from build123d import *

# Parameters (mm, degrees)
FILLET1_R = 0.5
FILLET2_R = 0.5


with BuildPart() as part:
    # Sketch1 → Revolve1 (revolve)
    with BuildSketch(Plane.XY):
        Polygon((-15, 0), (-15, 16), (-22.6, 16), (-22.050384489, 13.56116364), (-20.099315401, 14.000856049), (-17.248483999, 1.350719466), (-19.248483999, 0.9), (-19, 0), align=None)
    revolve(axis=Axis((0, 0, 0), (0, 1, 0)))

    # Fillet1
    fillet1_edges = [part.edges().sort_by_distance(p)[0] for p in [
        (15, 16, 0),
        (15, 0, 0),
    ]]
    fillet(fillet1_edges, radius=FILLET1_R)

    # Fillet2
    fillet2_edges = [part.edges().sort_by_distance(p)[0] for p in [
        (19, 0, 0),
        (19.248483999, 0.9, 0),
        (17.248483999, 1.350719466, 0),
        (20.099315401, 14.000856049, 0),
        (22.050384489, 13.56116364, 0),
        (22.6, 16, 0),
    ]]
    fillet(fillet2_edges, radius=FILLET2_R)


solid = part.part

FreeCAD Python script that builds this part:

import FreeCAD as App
import Part
import Sketcher
from FreeCAD import Vector
Q = App.Units.Quantity


def edges_at(feature, points):
    """Names of the edges that pass closest to the given points."""
    edges = feature.Shape.Edges
    near = lambda p: min(range(len(edges)), key=lambda i: edges[i].distToShape(Part.Vertex(*p))[0])
    return sorted({f"Edge{near(p) + 1}" for p in points})


def add_polygon(sketch, points):
    """Adds a closed chain of lines whose ends are joined by coincident constraints."""
    first, n = sketch.GeometryCount, len(points)
    for a, b in zip(points, points[1:] + points[:1]):
        sketch.addGeometry(Part.LineSegment(App.Vector(*a, 0), App.Vector(*b, 0)), False)
    for i in range(n):
        sketch.addConstraint(Sketcher.Constraint("Coincident", first + i, 2, first + (i + 1) % n, 1))

doc = App.newDocument("Part")
body = doc.addObject("PartDesign::Body", "Body")

# Sketch on XY plane
sketch1 = body.newObject("Sketcher::SketchObject", "Sketch")
sketch1.AttachmentSupport = (doc.getObject("XY_Plane"), [""])
sketch1.MapMode = "FlatFace"
add_polygon(sketch1, [(-15, 0), (-15, 16), (-22.6, 16), (-22.1, 13.6), (-20.1, 14), (-17.2, 1.4), (-19.2, 0.9), (-19, 0)])  # lines 0-7
sketch1.addConstraint([
    Sketcher.Constraint("Vertical", 0),
    Sketcher.Constraint("Horizontal", 1),
    Sketcher.Constraint("Horizontal", 7),
    Sketcher.Constraint("PointOnObject", 6, 2, -1),
    Sketcher.Constraint("Perpendicular", 2, 3),
    Sketcher.Constraint("Perpendicular", 3, 4),
    Sketcher.Constraint("Perpendicular", 4, 5),
    Sketcher.Constraint("DistanceX", 7, 1, 7, 2, Q("4 mm")),
    Sketcher.Constraint("DistanceY", 0, 1, 0, 2, Q("16 mm")),
    Sketcher.Constraint("Distance", 3, Q("2 mm")),
    Sketcher.Constraint("DistanceX", 1, 2, 1, 1, Q("7.6 mm")),
    Sketcher.Constraint("DistanceX", 0, 2, -1, 1, Q("15 mm")),
    Sketcher.Constraint("Angle", 2, Q("-77.3 deg")),
    Sketcher.Constraint("DistanceX", 5, 2, 4, 2, Q("2 mm")),
    Sketcher.Constraint("Distance", 2, Q("2.5 mm")),
    Sketcher.Constraint("DistanceY", -1, 1, 5, 2, Q("0.9 mm")),
])
revolution = body.newObject("PartDesign::Revolution", "Revolution")
revolution.Profile = sketch1
revolution.ReferenceAxis = (sketch1, ["V_Axis"])
revolution.Angle = 360
doc.recompute()

fillet = body.newObject("PartDesign::Fillet", "Fillet")
fillet.Base = (revolution, edges_at(revolution, [(15, 16, 0), (15, 0, 0)]))
fillet.Radius = 0.5
doc.recompute()

fillet2 = body.newObject("PartDesign::Fillet", "Fillet001")
fillet2.Base = (fillet, edges_at(fillet, [
    (19, 0, 0),
    (19.248, 0.9, 0),
    (17.248, 1.351, 0),
    (20.099, 14.001, 0),
    (22.05, 13.561, 0),
    (22.6, 16, 0),
]))
fillet2.Radius = 0.5

doc.recompute()
